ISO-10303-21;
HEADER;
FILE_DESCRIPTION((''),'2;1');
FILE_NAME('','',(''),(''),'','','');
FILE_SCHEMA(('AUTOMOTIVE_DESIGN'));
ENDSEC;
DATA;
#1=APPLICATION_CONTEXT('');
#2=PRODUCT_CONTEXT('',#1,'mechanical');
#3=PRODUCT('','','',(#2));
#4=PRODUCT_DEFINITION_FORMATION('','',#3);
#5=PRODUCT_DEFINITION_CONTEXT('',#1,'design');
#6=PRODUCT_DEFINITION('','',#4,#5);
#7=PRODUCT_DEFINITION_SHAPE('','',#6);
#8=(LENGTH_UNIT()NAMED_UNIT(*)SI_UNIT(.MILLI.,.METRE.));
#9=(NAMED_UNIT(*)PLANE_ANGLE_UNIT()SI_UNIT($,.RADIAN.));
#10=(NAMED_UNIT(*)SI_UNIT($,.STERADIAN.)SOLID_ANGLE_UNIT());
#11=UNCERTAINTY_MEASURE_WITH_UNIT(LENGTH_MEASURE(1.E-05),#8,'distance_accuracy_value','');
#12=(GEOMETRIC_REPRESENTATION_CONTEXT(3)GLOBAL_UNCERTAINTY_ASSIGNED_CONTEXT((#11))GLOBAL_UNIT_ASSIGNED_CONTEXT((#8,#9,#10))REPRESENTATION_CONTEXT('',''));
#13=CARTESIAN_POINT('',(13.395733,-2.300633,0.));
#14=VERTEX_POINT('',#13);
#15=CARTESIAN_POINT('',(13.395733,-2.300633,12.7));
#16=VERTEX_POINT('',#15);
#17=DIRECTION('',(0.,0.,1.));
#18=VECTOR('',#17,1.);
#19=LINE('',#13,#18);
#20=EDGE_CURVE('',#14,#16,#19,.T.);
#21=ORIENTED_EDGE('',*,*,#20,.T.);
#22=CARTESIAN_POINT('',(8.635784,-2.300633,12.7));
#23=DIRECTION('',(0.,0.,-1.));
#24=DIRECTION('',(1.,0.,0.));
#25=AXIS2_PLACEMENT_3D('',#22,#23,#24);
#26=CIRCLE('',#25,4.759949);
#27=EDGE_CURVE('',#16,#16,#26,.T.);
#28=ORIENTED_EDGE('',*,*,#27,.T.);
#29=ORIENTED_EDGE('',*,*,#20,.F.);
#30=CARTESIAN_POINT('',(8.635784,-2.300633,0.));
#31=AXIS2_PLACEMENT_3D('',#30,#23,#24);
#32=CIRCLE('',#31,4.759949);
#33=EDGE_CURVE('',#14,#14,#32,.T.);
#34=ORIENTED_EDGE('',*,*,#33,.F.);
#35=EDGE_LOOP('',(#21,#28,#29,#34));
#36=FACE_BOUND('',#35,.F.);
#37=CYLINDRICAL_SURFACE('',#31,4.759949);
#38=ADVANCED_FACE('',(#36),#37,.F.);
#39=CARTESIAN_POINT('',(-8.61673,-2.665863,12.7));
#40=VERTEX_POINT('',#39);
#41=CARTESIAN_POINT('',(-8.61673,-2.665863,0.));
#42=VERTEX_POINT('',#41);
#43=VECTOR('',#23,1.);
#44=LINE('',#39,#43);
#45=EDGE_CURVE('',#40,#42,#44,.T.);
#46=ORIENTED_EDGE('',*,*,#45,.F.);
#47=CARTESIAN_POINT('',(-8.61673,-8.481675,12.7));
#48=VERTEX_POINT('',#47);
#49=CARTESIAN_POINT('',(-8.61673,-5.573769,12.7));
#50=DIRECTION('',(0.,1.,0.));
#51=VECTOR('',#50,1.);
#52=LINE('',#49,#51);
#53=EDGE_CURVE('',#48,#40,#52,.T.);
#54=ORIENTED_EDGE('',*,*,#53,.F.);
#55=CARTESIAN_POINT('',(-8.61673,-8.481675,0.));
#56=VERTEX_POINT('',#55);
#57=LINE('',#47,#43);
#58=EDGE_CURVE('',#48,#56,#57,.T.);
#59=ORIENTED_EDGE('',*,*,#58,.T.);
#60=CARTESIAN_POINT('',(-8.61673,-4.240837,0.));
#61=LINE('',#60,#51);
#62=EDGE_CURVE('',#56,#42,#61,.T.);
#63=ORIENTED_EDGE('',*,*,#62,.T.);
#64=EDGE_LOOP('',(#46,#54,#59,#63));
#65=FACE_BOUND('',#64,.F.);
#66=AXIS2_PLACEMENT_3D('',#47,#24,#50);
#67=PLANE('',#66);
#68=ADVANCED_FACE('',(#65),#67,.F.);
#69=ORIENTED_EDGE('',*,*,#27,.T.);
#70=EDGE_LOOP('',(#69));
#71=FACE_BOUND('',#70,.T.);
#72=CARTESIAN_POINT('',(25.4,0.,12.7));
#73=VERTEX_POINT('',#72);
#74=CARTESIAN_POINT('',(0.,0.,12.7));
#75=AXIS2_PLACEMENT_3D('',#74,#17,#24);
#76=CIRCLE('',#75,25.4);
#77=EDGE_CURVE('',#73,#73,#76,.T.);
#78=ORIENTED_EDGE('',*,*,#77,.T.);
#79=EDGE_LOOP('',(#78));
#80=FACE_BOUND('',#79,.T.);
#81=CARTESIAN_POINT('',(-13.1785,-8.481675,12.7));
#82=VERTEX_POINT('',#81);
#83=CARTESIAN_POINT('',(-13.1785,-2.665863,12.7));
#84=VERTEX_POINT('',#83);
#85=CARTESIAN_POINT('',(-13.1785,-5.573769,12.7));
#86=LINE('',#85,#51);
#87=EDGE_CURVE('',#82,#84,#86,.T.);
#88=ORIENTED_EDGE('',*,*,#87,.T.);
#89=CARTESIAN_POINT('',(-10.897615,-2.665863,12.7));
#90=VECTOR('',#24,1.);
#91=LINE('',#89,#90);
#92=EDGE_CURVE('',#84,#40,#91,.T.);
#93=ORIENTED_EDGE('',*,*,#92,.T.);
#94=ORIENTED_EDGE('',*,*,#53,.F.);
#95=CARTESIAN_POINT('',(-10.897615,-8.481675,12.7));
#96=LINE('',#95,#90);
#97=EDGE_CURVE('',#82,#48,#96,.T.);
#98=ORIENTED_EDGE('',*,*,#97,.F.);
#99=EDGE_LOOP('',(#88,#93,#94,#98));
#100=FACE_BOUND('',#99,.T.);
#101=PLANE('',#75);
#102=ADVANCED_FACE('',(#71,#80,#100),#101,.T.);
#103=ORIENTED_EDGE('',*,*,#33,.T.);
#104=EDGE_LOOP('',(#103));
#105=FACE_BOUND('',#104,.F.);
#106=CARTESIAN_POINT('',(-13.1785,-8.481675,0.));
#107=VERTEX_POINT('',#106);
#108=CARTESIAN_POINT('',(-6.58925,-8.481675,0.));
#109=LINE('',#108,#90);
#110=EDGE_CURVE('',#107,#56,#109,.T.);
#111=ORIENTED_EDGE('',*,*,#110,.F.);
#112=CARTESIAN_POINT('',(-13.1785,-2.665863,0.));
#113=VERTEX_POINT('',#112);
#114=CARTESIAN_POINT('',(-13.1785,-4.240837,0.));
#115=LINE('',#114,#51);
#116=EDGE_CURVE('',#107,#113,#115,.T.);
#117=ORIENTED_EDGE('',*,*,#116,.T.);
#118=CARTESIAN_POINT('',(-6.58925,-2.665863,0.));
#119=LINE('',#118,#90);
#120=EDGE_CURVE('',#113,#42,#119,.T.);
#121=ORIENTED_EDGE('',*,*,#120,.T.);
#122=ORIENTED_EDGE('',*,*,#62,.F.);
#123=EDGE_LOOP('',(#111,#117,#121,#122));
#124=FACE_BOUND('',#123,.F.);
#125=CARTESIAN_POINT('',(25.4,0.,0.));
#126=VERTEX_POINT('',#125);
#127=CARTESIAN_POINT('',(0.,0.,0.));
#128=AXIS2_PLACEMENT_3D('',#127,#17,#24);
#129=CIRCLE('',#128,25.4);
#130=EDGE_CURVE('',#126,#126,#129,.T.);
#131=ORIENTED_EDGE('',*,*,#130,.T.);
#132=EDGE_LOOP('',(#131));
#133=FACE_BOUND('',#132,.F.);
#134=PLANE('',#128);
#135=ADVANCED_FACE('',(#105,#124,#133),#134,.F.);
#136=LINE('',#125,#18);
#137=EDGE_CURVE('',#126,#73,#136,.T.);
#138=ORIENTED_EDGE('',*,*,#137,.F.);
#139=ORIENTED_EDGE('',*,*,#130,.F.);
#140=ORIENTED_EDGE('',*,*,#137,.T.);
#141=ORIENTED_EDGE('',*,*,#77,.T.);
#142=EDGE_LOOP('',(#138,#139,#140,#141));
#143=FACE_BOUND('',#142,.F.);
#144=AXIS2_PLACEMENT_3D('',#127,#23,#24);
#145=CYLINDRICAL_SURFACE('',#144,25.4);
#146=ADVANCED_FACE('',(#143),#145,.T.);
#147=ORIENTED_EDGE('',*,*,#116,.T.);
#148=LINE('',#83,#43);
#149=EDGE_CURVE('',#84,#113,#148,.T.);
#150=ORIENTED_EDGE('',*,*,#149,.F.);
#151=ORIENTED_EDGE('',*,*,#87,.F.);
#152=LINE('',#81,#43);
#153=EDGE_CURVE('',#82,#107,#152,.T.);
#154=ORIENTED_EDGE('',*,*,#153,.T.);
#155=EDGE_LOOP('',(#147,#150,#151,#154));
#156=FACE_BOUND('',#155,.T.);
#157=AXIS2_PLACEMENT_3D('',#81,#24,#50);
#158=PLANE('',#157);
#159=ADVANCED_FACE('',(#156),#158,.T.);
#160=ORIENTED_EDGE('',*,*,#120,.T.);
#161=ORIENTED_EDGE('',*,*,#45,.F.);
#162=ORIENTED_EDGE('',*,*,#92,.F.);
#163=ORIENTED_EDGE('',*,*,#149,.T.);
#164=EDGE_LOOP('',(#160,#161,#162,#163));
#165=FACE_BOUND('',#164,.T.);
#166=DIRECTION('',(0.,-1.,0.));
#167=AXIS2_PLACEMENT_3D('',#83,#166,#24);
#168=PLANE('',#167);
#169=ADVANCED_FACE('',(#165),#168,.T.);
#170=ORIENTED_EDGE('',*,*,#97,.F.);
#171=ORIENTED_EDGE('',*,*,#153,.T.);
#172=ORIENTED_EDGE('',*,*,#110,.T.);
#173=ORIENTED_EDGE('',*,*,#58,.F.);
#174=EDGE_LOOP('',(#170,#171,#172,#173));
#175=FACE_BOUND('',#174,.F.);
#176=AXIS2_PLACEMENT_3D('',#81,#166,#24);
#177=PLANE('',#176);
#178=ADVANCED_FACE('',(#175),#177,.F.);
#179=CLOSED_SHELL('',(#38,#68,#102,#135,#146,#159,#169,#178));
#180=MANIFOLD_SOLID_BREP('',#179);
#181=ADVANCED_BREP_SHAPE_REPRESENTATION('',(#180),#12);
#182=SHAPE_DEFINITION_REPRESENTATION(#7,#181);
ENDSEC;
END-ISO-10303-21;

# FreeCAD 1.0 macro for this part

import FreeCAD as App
import Part
import Sketcher

V = App.Vector
Q = App.Units.Quantity

doc = App.newDocument("Part")
body = doc.addObject("PartDesign::Body", "Body")

# Sketch on XY plane
sketch1 = body.newObject("Sketcher::SketchObject", "Sketch")
sketch1.AttachmentSupport = (doc.getObject("XY_Plane"), [""])
sketch1.MapMode = "FlatFace"
sketch1.addGeometry(Part.Circle(V(0, 0, 0), V(0, 0, 1), 25.4), False)
sketch1.addConstraint(Sketcher.Constraint("Coincident", 0, 3, -1, 1))
sketch1.addConstraint(Sketcher.Constraint("Diameter", 0, Q("2 in")))
pad1 = body.newObject("PartDesign::Pad", "Pad")
pad1.Profile = sketch1
pad1.Length = Q("0.5 in")

# Sketch on XY plane
sketch2 = body.newObject("Sketcher::SketchObject", "Sketch001")
sketch2.AttachmentSupport = (doc.getObject("XY_Plane"), [""])
sketch2.MapMode = "FlatFace"
sketch2.AttachmentOffset = App.Placement(V(0, 0, 0.5 * 25.4), App.Rotation())
sketch2.addGeometry(Part.LineSegment(V(-13.1785, -2.665863, 0), V(-13.1785, -8.481675, 0)), False)
sketch2.addGeometry(Part.LineSegment(V(-13.1785, -8.481675, 0), V(-8.61673, -8.481675, 0)), False)
sketch2.addGeometry(Part.LineSegment(V(-8.61673, -8.481675, 0), V(-8.61673, -2.665863, 0)), False)
sketch2.addGeometry(Part.LineSegment(V(-8.61673, -2.665863, 0), V(-13.1785, -2.665863, 0)), False)
sketch2.addConstraint(Sketcher.Constraint("Coincident", 0, 2, 1, 1))
sketch2.addConstraint(Sketcher.Constraint("Coincident", 1, 2, 2, 1))
sketch2.addConstraint(Sketcher.Constraint("Coincident", 2, 2, 3, 1))
sketch2.addConstraint(Sketcher.Constraint("Coincident", 3, 2, 0, 1))
sketch2.addConstraint(Sketcher.Constraint("Vertical", 0))
sketch2.addConstraint(Sketcher.Constraint("Horizontal", 1))
sketch2.addConstraint(Sketcher.Constraint("Vertical", 2))
sketch2.addConstraint(Sketcher.Constraint("Horizontal", 3))
sketch2.addConstraint(Sketcher.Constraint("DistanceX", 1, 1, 1, 2, 4.56177))
sketch2.addConstraint(Sketcher.Constraint("DistanceY", 0, 2, 0, 1, 5.815812))
sketch2.addConstraint(Sketcher.Constraint("DistanceX", 0, 2, -1, 1, 13.1785))
sketch2.addConstraint(Sketcher.Constraint("DistanceY", 0, 2, -1, 1, 8.481675))
pocket1 = body.newObject("PartDesign::Pocket", "Pocket")
pocket1.Profile = sketch2
pocket1.Type = "ThroughAll"

# Sketch on XY plane
sketch3 = body.newObject("Sketcher::SketchObject", "Sketch002")
sketch3.AttachmentSupport = (doc.getObject("XY_Plane"), [""])
sketch3.MapMode = "FlatFace"
sketch3.addGeometry(Part.Circle(V(8.635784, -2.300633, 0), V(0, 0, 1), 4.759949), False)
sketch3.addConstraint(Sketcher.Constraint("Diameter", 0, 9.519898))
sketch3.addConstraint(Sketcher.Constraint("DistanceX", -1, 1, 0, 3, 8.635784))
sketch3.addConstraint(Sketcher.Constraint("DistanceY", 0, 3, -1, 1, 2.300633))
pocket2 = body.newObject("PartDesign::Pocket", "Pocket001")
pocket2.Profile = sketch3
pocket2.Type = "ThroughAll"
pocket2.Reversed = True

doc.recompute()
